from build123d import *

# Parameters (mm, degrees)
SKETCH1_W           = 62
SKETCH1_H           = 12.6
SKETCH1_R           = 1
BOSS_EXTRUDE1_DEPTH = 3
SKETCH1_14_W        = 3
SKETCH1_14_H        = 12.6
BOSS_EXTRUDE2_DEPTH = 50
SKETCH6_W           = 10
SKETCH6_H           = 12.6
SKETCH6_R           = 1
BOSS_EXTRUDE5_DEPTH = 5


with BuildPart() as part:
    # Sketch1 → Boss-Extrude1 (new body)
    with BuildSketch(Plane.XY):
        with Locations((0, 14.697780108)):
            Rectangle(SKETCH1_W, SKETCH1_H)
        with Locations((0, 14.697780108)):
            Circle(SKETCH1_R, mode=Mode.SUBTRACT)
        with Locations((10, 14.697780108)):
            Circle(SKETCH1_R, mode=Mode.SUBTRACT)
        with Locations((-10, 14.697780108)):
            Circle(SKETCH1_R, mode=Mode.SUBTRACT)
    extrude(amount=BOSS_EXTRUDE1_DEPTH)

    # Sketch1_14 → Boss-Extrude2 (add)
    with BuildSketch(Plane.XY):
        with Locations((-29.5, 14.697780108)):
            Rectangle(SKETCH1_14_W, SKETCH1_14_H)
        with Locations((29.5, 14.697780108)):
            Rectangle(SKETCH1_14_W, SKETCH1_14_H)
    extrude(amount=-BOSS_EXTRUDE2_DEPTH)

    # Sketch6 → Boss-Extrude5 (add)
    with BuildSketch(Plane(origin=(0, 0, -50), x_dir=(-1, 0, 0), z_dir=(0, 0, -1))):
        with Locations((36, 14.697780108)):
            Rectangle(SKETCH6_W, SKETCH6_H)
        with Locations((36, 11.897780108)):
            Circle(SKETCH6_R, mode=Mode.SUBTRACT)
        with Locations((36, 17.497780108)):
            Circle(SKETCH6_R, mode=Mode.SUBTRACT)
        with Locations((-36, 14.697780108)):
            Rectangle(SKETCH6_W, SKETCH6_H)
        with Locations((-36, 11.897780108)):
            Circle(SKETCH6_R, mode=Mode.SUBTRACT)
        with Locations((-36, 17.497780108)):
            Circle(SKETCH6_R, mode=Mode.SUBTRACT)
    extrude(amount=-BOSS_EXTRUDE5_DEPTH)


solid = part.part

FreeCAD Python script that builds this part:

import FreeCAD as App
import Part
import Sketcher
from FreeCAD import Vector
Q = App.Units.Quantity

doc = App.newDocument("Part")
body = doc.addObject("PartDesign::Body", "Body")

sketch1 = body.newObject("Sketcher::SketchObject", "Sketch")
sketch1.AttachmentSupport = (doc.getObject("XY_Plane"), [""])
sketch1.MapMode = "FlatFace"
sketch1.addGeometry(Part.LineSegment(Vector(-31, 21, 0), Vector(-31, 8.4, 0)), False)
sketch1.addGeometry(Part.LineSegment(Vector(-31, 8.4, 0), Vector(31, 8.4, 0)), False)
sketch1.addGeometry(Part.LineSegment(Vector(31, 8.4, 0), Vector(31, 21, 0)), False)
sketch1.addGeometry(Part.LineSegment(Vector(31, 21, 0), Vector(-31, 21, 0)), False)
sketch1.addGeometry(Part.Circle(Vector(-10, 14.7, 0), Vector(0, 0, 1), 1), False)
sketch1.addGeometry(Part.Circle(Vector(0, 14.7, 0), Vector(0, 0, 1), 1), False)
sketch1.addGeometry(Part.Circle(Vector(10, 14.7, 0), Vector(0, 0, 1), 1), False)
sketch1.addConstraint(Sketcher.Constraint("Coincident", 0, 2, 1, 1))
sketch1.addConstraint(Sketcher.Constraint("Coincident", 1, 2, 2, 1))
sketch1.addConstraint(Sketcher.Constraint("Coincident", 2, 2, 3, 1))
sketch1.addConstraint(Sketcher.Constraint("Coincident", 3, 2, 0, 1))
sketch1.addConstraint(Sketcher.Constraint("Vertical", 0))
sketch1.addConstraint(Sketcher.Constraint("Horizontal", 1))
sketch1.addConstraint(Sketcher.Constraint("Vertical", 2))
sketch1.addConstraint(Sketcher.Constraint("Horizontal", 3))
sketch1.addConstraint(Sketcher.Constraint("Equal", 4, 5))
sketch1.addConstraint(Sketcher.Constraint("Equal", 5, 6))
sketch1.addConstraint(Sketcher.Constraint("Symmetric", 4, 3, 6, 3, -2))
sketch1.addConstraint(Sketcher.Constraint("PointOnObject", 5, 3, -2))
sketch1.addConstraint(Sketcher.Constraint("Horizontal", 4, 3, 5, 3))
sketch1.addConstraint(Sketcher.Constraint("Diameter", 4, Q("2 mm")))
sketch1.addConstraint(Sketcher.Constraint("DistanceX", 1, 1, 1, 2, Q("62 mm")))
sketch1.addConstraint(Sketcher.Constraint("DistanceY", 0, 2, 0, 1, Q("12.6 mm")))
sketch1.addConstraint(Sketcher.Constraint("DistanceX", 4, 3, -1, 1, Q("10 mm")))
sketch1.addConstraint(Sketcher.Constraint("DistanceX", 0, 2, -1, 1, Q("31 mm")))
sketch1.addConstraint(Sketcher.Constraint("DistanceY", 0, 2, 4, 3, Q("6.3 mm")))
sketch1.addConstraint(Sketcher.Constraint("DistanceY", -1, 1, 4, 3, Q("14.69778 mm")))
pad1 = body.newObject("PartDesign::Pad", "Pad")
pad1.Profile = sketch1
pad1.Length = 3

sketch2 = body.newObject("Sketcher::SketchObject", "Sketch001")
sketch2.AttachmentSupport = (doc.getObject("XY_Plane"), [""])
sketch2.MapMode = "FlatFace"
sketch2.addGeometry(Part.LineSegment(Vector(-31, 21, 0), Vector(-31, 8.4, 0)), False)
sketch2.addGeometry(Part.LineSegment(Vector(-31, 8.4, 0), Vector(-28, 8.4, 0)), False)
sketch2.addGeometry(Part.LineSegment(Vector(-28, 8.4, 0), Vector(-28, 21, 0)), False)
sketch2.addGeometry(Part.LineSegment(Vector(-28, 21, 0), Vector(-31, 21, 0)), False)
sketch2.addGeometry(Part.LineSegment(Vector(28, 21, 0), Vector(28, 8.4, 0)), False)
sketch2.addGeometry(Part.LineSegment(Vector(28, 8.4, 0), Vector(31, 8.4, 0)), False)
sketch2.addGeometry(Part.LineSegment(Vector(31, 8.4, 0), Vector(31, 21, 0)), False)
sketch2.addGeometry(Part.LineSegment(Vector(31, 21, 0), Vector(28, 21, 0)), False)
sketch2.addConstraint(Sketcher.Constraint("Coincident", 0, 2, 1, 1))
sketch2.addConstraint(Sketcher.Constraint("Coincident", 1, 2, 2, 1))
sketch2.addConstraint(Sketcher.Constraint("Coincident", 2, 2, 3, 1))
sketch2.addConstraint(Sketcher.Constraint("Coincident", 3, 2, 0, 1))
sketch2.addConstraint(Sketcher.Constraint("Coincident", 4, 2, 5, 1))
sketch2.addConstraint(Sketcher.Constraint("Coincident", 5, 2, 6, 1))
sketch2.addConstraint(Sketcher.Constraint("Coincident", 6, 2, 7, 1))
sketch2.addConstraint(Sketcher.Constraint("Coincident", 7, 2, 4, 1))
sketch2.addConstraint(Sketcher.Constraint("Vertical", 0))
sketch2.addConstraint(Sketcher.Constraint("Horizontal", 1))
sketch2.addConstraint(Sketcher.Constraint("Vertical", 2))
sketch2.addConstraint(Sketcher.Constraint("Horizontal", 3))
sketch2.addConstraint(Sketcher.Constraint("Vertical", 4))
sketch2.addConstraint(Sketcher.Constraint("Horizontal", 5))
sketch2.addConstraint(Sketcher.Constraint("Vertical", 6))
sketch2.addConstraint(Sketcher.Constraint("Horizontal", 7))
sketch2.addConstraint(Sketcher.Constraint("Symmetric", 1, 2, 4, 2, -2))
sketch2.addConstraint(Sketcher.Constraint("Symmetric", 3, 2, 6, 2, -2))
sketch2.addConstraint(Sketcher.Constraint("DistanceX", 1, 1, 1, 2, Q("3 mm")))
sketch2.addConstraint(Sketcher.Constraint("DistanceY", 0, 2, 0, 1, Q("12.6 mm")))
sketch2.addConstraint(Sketcher.Constraint("DistanceX", 0, 2, -1, 1, Q("31 mm")))
sketch2.addConstraint(Sketcher.Constraint("DistanceY", -1, 1, 0, 2, Q("8.39778 mm")))
pad2 = body.newObject("PartDesign::Pad", "Pad001")
pad2.Profile = sketch2
pad2.Length = 50
pad2.Reversed = True

sketch3 = body.newObject("Sketcher::SketchObject", "Sketch002")
sketch3.AttachmentSupport = (doc.getObject("XY_Plane"), [""])
sketch3.MapMode = "FlatFace"
sketch3.AttachmentOffset = App.Placement(Vector(0, 0, -50), App.Rotation())
sketch3.addGeometry(Part.LineSegment(Vector(-31, 21, 0), Vector(-31, 8.4, 0)), False)
sketch3.addGeometry(Part.LineSegment(Vector(-31, 8.4, 0), Vector(-41, 8.4, 0)), False)
sketch3.addGeometry(Part.LineSegment(Vector(-41, 8.4, 0), Vector(-41, 21, 0)), False)
sketch3.addGeometry(Part.LineSegment(Vector(-41, 21, 0), Vector(-31, 21, 0)), False)
sketch3.addGeometry(Part.Circle(Vector(-36, 11.9, 0), Vector(0, 0, 1), 1), False)
sketch3.addGeometry(Part.Circle(Vector(-36, 17.5, 0), Vector(0, 0, 1), 1), False)
sketch3.addGeometry(Part.LineSegment(Vector(41, 21, 0), Vector(41, 8.4, 0)), False)
sketch3.addGeometry(Part.LineSegment(Vector(41, 8.4, 0), Vector(31, 8.4, 0)), False)
sketch3.addGeometry(Part.LineSegment(Vector(31, 8.4, 0), Vector(31, 21, 0)), False)
sketch3.addGeometry(Part.LineSegment(Vector(31, 21, 0), Vector(41, 21, 0)), False)
sketch3.addGeometry(Part.Circle(Vector(36, 11.9, 0), Vector(0, 0, 1), 1), False)
sketch3.addGeometry(Part.Circle(Vector(36, 17.5, 0), Vector(0, 0, 1), 1), False)
sketch3.addConstraint(Sketcher.Constraint("Coincident", 0, 2, 1, 1))
sketch3.addConstraint(Sketcher.Constraint("Coincident", 1, 2, 2, 1))
sketch3.addConstraint(Sketcher.Constraint("Coincident", 2, 2, 3, 1))
sketch3.addConstraint(Sketcher.Constraint("Coincident", 3, 2, 0, 1))
sketch3.addConstraint(Sketcher.Constraint("Coincident", 6, 2, 7, 1))
sketch3.addConstraint(Sketcher.Constraint("Coincident", 7, 2, 8, 1))
sketch3.addConstraint(Sketcher.Constraint("Coincident", 8, 2, 9, 1))
sketch3.addConstraint(Sketcher.Constraint("Coincident", 9, 2, 6, 1))
sketch3.addConstraint(Sketcher.Constraint("Vertical", 0))
sketch3.addConstraint(Sketcher.Constraint("Horizontal", 1))
sketch3.addConstraint(Sketcher.Constraint("Vertical", 2))
sketch3.addConstraint(Sketcher.Constraint("Horizontal", 3))
sketch3.addConstraint(Sketcher.Constraint("Vertical", 6))
sketch3.addConstraint(Sketcher.Constraint("Horizontal", 7))
sketch3.addConstraint(Sketcher.Constraint("Vertical", 8))
sketch3.addConstraint(Sketcher.Constraint("Horizontal", 9))
sketch3.addConstraint(Sketcher.Constraint("Equal", 4, 5))
sketch3.addConstraint(Sketcher.Constraint("Equal", 5, 10))
sketch3.addConstraint(Sketcher.Constraint("Equal", 10, 11))
sketch3.addConstraint(Sketcher.Constraint("Symmetric", 4, 3, 10, 3, -2))
sketch3.addConstraint(Sketcher.Constraint("Symmetric", 5, 3, 11, 3, -2))
sketch3.addConstraint(Sketcher.Constraint("Symmetric", 1, 2, 6, 2, -2))
sketch3.addConstraint(Sketcher.Constraint("Symmetric", 3, 2, 8, 2, -2))
sketch3.addConstraint(Sketcher.Constraint("Vertical", 4, 3, 5, 3))
sketch3.addConstraint(Sketcher.Constraint("Diameter", 4, Q("2 mm")))
sketch3.addConstraint(Sketcher.Constraint("DistanceX", 1, 2, 1, 1, Q("10 mm")))
sketch3.addConstraint(Sketcher.Constraint("DistanceY", 0, 2, 0, 1, Q("12.6 mm")))
sketch3.addConstraint(Sketcher.Constraint("DistanceX", 4, 3, -1, 1, Q("36 mm")))
sketch3.addConstraint(Sketcher.Constraint("DistanceX", 0, 2, -1, 1, Q("31 mm")))
sketch3.addConstraint(Sketcher.Constraint("DistanceY", 4, 3, 5, 3, Q("5.6 mm")))
sketch3.addConstraint(Sketcher.Constraint("DistanceY", 0, 2, 4, 3, Q("3.5 mm")))
sketch3.addConstraint(Sketcher.Constraint("DistanceY", -1, 1, 4, 3, Q("11.89778 mm")))
pad3 = body.newObject("PartDesign::Pad", "Pad002")
pad3.Profile = sketch3
pad3.Length = 5

doc.recompute()
